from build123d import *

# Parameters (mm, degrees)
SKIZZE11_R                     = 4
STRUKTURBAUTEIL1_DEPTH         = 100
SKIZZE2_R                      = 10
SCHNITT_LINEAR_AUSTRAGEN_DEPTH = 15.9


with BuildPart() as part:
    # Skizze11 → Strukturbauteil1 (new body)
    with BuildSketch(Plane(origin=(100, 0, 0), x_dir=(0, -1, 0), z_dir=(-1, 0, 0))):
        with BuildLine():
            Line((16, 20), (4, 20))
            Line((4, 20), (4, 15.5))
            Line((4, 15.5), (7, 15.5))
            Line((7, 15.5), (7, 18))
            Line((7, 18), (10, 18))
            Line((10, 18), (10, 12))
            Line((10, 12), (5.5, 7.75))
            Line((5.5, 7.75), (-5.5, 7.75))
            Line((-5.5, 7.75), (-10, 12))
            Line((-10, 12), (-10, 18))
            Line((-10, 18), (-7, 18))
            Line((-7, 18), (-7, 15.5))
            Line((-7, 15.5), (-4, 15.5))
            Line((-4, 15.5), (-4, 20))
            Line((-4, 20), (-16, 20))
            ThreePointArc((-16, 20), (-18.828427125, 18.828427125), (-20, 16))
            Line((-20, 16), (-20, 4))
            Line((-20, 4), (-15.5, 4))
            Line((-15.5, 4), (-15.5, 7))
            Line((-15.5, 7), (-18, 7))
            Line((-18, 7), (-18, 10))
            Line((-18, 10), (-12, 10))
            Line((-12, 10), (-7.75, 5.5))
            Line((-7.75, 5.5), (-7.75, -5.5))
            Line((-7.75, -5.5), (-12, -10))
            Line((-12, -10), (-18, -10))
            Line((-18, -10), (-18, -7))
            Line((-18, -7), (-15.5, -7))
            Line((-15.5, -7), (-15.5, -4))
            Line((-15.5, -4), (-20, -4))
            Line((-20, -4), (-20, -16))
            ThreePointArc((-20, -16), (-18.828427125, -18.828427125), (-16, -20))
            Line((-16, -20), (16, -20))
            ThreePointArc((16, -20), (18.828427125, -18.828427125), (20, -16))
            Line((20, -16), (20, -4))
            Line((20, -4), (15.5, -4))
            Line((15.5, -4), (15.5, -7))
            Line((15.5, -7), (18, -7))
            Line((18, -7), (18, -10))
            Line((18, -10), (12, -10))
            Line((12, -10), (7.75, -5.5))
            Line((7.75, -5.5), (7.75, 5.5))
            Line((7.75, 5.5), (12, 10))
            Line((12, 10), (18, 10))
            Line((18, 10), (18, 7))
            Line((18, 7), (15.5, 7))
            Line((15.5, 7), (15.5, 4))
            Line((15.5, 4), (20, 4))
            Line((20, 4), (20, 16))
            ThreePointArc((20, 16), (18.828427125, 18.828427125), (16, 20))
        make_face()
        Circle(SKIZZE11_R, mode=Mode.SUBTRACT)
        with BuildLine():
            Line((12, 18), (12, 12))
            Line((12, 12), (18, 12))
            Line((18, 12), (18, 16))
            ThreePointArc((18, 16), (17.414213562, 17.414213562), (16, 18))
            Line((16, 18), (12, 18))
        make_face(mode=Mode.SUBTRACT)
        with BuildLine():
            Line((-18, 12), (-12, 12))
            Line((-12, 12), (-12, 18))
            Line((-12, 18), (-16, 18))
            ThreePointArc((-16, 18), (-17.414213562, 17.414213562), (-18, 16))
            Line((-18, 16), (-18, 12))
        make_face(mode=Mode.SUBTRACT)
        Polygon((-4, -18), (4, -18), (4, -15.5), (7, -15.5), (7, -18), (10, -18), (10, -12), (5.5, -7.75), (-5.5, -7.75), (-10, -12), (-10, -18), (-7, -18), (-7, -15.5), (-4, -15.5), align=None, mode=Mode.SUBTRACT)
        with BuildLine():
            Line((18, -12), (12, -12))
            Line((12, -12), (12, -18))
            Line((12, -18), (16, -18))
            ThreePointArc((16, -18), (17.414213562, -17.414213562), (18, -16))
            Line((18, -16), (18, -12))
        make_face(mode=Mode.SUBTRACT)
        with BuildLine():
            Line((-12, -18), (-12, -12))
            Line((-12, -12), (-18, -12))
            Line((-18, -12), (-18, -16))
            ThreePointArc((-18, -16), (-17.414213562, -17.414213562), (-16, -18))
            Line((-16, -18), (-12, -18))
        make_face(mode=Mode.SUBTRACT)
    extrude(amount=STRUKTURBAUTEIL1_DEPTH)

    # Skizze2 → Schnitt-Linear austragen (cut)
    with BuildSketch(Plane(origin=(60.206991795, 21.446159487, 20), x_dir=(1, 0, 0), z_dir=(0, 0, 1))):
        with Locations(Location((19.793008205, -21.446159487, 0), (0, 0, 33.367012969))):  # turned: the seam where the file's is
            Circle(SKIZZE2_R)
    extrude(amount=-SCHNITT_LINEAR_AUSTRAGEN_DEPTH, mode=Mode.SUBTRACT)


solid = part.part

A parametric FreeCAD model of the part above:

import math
import FreeCAD as App
import Part
import Sketcher
from FreeCAD import Vector


def add_polygon(sketch, points):
    """Adds a closed chain of lines whose ends are joined by coincident constraints."""
    first, n = sketch.GeometryCount, len(points)
    for a, b in zip(points, points[1:] + points[:1]):
        sketch.addGeometry(Part.LineSegment(App.Vector(*a, 0), App.Vector(*b, 0)), False)
    for i in range(n):
        sketch.addConstraint(Sketcher.Constraint("Coincident", first + i, 2, first + (i + 1) % n, 1))

doc = App.newDocument("Part")
body = doc.addObject("PartDesign::Body", "Body")

sketch1 = body.newObject("Sketcher::SketchObject", "Sketch")
sketch1.AttachmentSupport = (doc.getObject("YZ_Plane"), [""])
sketch1.MapMode = "FlatFace"
sketch1.AttachmentOffset = App.Placement(Vector(0, 0, 100), App.Rotation())
sketch1.addGeometry(Part.LineSegment(Vector(-16, 20, 0), Vector(-4, 20, 0)), False)
sketch1.addGeometry(Part.LineSegment(Vector(-4, 20, 0), Vector(-4, 15.5, 0)), False)
sketch1.addGeometry(Part.LineSegment(Vector(-4, 15.5, 0), Vector(-7, 15.5, 0)), False)
sketch1.addGeometry(Part.LineSegment(Vector(-7, 15.5, 0), Vector(-7, 18, 0)), False)
sketch1.addGeometry(Part.LineSegment(Vector(-7, 18, 0), Vector(-10, 18, 0)), False)
sketch1.addGeometry(Part.LineSegment(Vector(-10, 18, 0), Vector(-10, 12, 0)), False)
sketch1.addGeometry(Part.LineSegment(Vector(-10, 12, 0), Vector(-5.5, 7.8, 0)), False)
sketch1.addGeometry(Part.LineSegment(Vector(-5.5, 7.8, 0), Vector(5.5, 7.8, 0)), False)
sketch1.addGeometry(Part.LineSegment(Vector(5.5, 7.8, 0), Vector(10, 12, 0)), False)
sketch1.addGeometry(Part.LineSegment(Vector(10, 12, 0), Vector(10, 18, 0)), False)
sketch1.addGeometry(Part.LineSegment(Vector(10, 18, 0), Vector(7, 18, 0)), False)
sketch1.addGeometry(Part.LineSegment(Vector(7, 18, 0), Vector(7, 15.5, 0)), False)
sketch1.addGeometry(Part.LineSegment(Vector(7, 15.5, 0), Vector(4, 15.5, 0)), False)
sketch1.addGeometry(Part.LineSegment(Vector(4, 15.5, 0), Vector(4, 20, 0)), False)
sketch1.addGeometry(Part.LineSegment(Vector(4, 20, 0), Vector(16, 20, 0)), False)
sketch1.addGeometry(Part.ArcOfCircle(Part.Circle(Vector(16, 16, 0), Vector(0, 0, 1), 4), math.radians(0), math.radians(90)), False)
sketch1.addGeometry(Part.LineSegment(Vector(20, 16, 0), Vector(20, 4, 0)), False)
sketch1.addGeometry(Part.LineSegment(Vector(20, 4, 0), Vector(15.5, 4, 0)), False)
sketch1.addGeometry(Part.LineSegment(Vector(15.5, 4, 0), Vector(15.5, 7, 0)), False)
sketch1.addGeometry(Part.LineSegment(Vector(15.5, 7, 0), Vector(18, 7, 0)), False)
sketch1.addGeometry(Part.LineSegment(Vector(18, 7, 0), Vector(18, 10, 0)), False)
sketch1.addGeometry(Part.LineSegment(Vector(18, 10, 0), Vector(12, 10, 0)), False)
sketch1.addGeometry(Part.LineSegment(Vector(12, 10, 0), Vector(7.8, 5.5, 0)), False)
sketch1.addGeometry(Part.LineSegment(Vector(7.8, 5.5, 0), Vector(7.8, -5.5, 0)), False)
sketch1.addGeometry(Part.LineSegment(Vector(7.8, -5.5, 0), Vector(12, -10, 0)), False)
sketch1.addGeometry(Part.LineSegment(Vector(12, -10, 0), Vector(18, -10, 0)), False)
sketch1.addGeometry(Part.LineSegment(Vector(18, -10, 0), Vector(18, -7, 0)), False)
sketch1.addGeometry(Part.LineSegment(Vector(18, -7, 0), Vector(15.5, -7, 0)), False)
sketch1.addGeometry(Part.LineSegment(Vector(15.5, -7, 0), Vector(15.5, -4, 0)), False)
sketch1.addGeometry(Part.LineSegment(Vector(15.5, -4, 0), Vector(20, -4, 0)), False)
sketch1.addGeometry(Part.LineSegment(Vector(20, -4, 0), Vector(20, -16, 0)), False)
sketch1.addGeometry(Part.ArcOfCircle(Part.Circle(Vector(16, -16, 0), Vector(0, 0, 1), 4), math.radians(-90), math.radians(0)), False)
sketch1.addGeometry(Part.LineSegment(Vector(16, -20, 0), Vector(-16, -20, 0)), False)
sketch1.addGeometry(Part.ArcOfCircle(Part.Circle(Vector(-16, -16, 0), Vector(0, 0, 1), 4), math.radians(180), math.radians(270)), False)
sketch1.addGeometry(Part.LineSegment(Vector(-20, -16, 0), Vector(-20, -4, 0)), False)
sketch1.addGeometry(Part.LineSegment(Vector(-20, -4, 0), Vector(-15.5, -4, 0)), False)
sketch1.addGeometry(Part.LineSegment(Vector(-15.5, -4, 0), Vector(-15.5, -7, 0)), False)
sketch1.addGeometry(Part.LineSegment(Vector(-15.5, -7, 0), Vector(-18, -7, 0)), False)
sketch1.addGeometry(Part.LineSegment(Vector(-18, -7, 0), Vector(-18, -10, 0)), False)
sketch1.addGeometry(Part.LineSegment(Vector(-18, -10, 0), Vector(-12, -10, 0)), False)
sketch1.addGeometry(Part.LineSegment(Vector(-12, -10, 0), Vector(-7.8, -5.5, 0)), False)
sketch1.addGeometry(Part.LineSegment(Vector(-7.8, -5.5, 0), Vector(-7.8, 5.5, 0)), False)
sketch1.addGeometry(Part.LineSegment(Vector(-7.8, 5.5, 0), Vector(-12, 10, 0)), False)
sketch1.addGeometry(Part.LineSegment(Vector(-12, 10, 0), Vector(-18, 10, 0)), False)
sketch1.addGeometry(Part.LineSegment(Vector(-18, 10, 0), Vector(-18, 7, 0)), False)
sketch1.addGeometry(Part.LineSegment(Vector(-18, 7, 0), Vector(-15.5, 7, 0)), False)
sketch1.addGeometry(Part.LineSegment(Vector(-15.5, 7, 0), Vector(-15.5, 4, 0)), False)
sketch1.addGeometry(Part.LineSegment(Vector(-15.5, 4, 0), Vector(-20, 4, 0)), False)
sketch1.addGeometry(Part.LineSegment(Vector(-20, 4, 0), Vector(-20, 16, 0)), False)
sketch1.addGeometry(Part.ArcOfCircle(Part.Circle(Vector(-16, 16, 0), Vector(0, 0, 1), 4), math.radians(90), math.radians(180)), False)
sketch1.addGeometry(Part.LineSegment(Vector(12, -12, 0), Vector(12, -18, 0)), False)
sketch1.addGeometry(Part.LineSegment(Vector(12, -18, 0), Vector(16, -18, 0)), False)
sketch1.addGeometry(Part.ArcOfCircle(Part.Circle(Vector(16, -16, 0), Vector(0, 0, 1), 2), math.radians(-90), math.radians(0)), False)
sketch1.addGeometry(Part.LineSegment(Vector(18, -16, 0), Vector(18, -12, 0)), False)
sketch1.addGeometry(Part.LineSegment(Vector(18, -12, 0), Vector(12, -12, 0)), False)
add_polygon(sketch1, [(-4, -18), (4, -18), (4, -15.5), (7, -15.5), (7, -18), (10, -18), (10, -12), (5.5, -7.8), (-5.5, -7.8), (-10, -12), (-10, -18), (-7, -18), (-7, -15.5), (-4, -15.5)])
sketch1.addGeometry(Part.LineSegment(Vector(-12, -12, 0), Vector(-18, -12, 0)), False)
sketch1.addGeometry(Part.LineSegment(Vector(-18, -12, 0), Vector(-18, -16, 0)), False)
sketch1.addGeometry(Part.ArcOfCircle(Part.Circle(Vector(-16, -16, 0), Vector(0, 0, 1), 2), math.radians(-180), math.radians(-90)), False)
sketch1.addGeometry(Part.LineSegment(Vector(-16, -18, 0), Vector(-12, -18, 0)), False)
sketch1.addGeometry(Part.LineSegment(Vector(-12, -18, 0), Vector(-12, -12, 0)), False)
sketch1.addGeometry(Part.LineSegment(Vector(12, 12, 0), Vector(18, 12, 0)), False)
sketch1.addGeometry(Part.LineSegment(Vector(18, 12, 0), Vector(18, 16, 0)), False)
sketch1.addGeometry(Part.ArcOfCircle(Part.Circle(Vector(16, 16, 0), Vector(0, 0, 1), 2), math.radians(0), math.radians(90)), False)
sketch1.addGeometry(Part.LineSegment(Vector(16, 18, 0), Vector(12, 18, 0)), False)
sketch1.addGeometry(Part.LineSegment(Vector(12, 18, 0), Vector(12, 12, 0)), False)
sketch1.addGeometry(Part.Circle(Vector(0, 0, 0), Vector(0, 0, 1), 4), False)
sketch1.addGeometry(Part.LineSegment(Vector(-12, 12, 0), Vector(-12, 18, 0)), False)
sketch1.addGeometry(Part.LineSegment(Vector(-12, 18, 0), Vector(-16, 18, 0)), False)
sketch1.addGeometry(Part.ArcOfCircle(Part.Circle(Vector(-16, 16, 0), Vector(0, 0, 1), 2), math.radians(90), math.radians(180)), False)
sketch1.addGeometry(Part.LineSegment(Vector(-18, 16, 0), Vector(-18, 12, 0)), False)
sketch1.addGeometry(Part.LineSegment(Vector(-18, 12, 0), Vector(-12, 12, 0)), False)
sketch1.addConstraint([
    Sketcher.Constraint("Coincident", 0, 2, 1, 1),
    Sketcher.Constraint("Coincident", 1, 2, 2, 1),
    Sketcher.Constraint("Coincident", 2, 2, 3, 1),
    Sketcher.Constraint("Coincident", 3, 2, 4, 1),
    Sketcher.Constraint("Coincident", 4, 2, 5, 1),
    Sketcher.Constraint("Coincident", 5, 2, 6, 1),
    Sketcher.Constraint("Coincident", 6, 2, 7, 1),
    Sketcher.Constraint("Coincident", 7, 2, 8, 1),
    Sketcher.Constraint("Coincident", 8, 2, 9, 1),
    Sketcher.Constraint("Coincident", 9, 2, 10, 1),
    Sketcher.Constraint("Coincident", 10, 2, 11, 1),
    Sketcher.Constraint("Coincident", 11, 2, 12, 1),
    Sketcher.Constraint("Coincident", 12, 2, 13, 1),
    Sketcher.Constraint("Coincident", 13, 2, 14, 1),
    Sketcher.Constraint("Tangent", 14, 2, 15, 2),
    Sketcher.Constraint("Tangent", 15, 1, 16, 1),
    Sketcher.Constraint("Coincident", 16, 2, 17, 1),
    Sketcher.Constraint("Coincident", 17, 2, 18, 1),
    Sketcher.Constraint("Coincident", 18, 2, 19, 1),
    Sketcher.Constraint("Coincident", 19, 2, 20, 1),
    Sketcher.Constraint("Coincident", 20, 2, 21, 1),
    Sketcher.Constraint("Coincident", 21, 2, 22, 1),
    Sketcher.Constraint("Coincident", 22, 2, 23, 1),
    Sketcher.Constraint("Coincident", 23, 2, 24, 1),
    Sketcher.Constraint("Coincident", 24, 2, 25, 1),
    Sketcher.Constraint("Coincident", 25, 2, 26, 1),
    Sketcher.Constraint("Coincident", 26, 2, 27, 1),
    Sketcher.Constraint("Coincident", 27, 2, 28, 1),
    Sketcher.Constraint("Coincident", 28, 2, 29, 1),
    Sketcher.Constraint("Coincident", 29, 2, 30, 1),
    Sketcher.Constraint("Tangent", 30, 2, 31, 2),
    Sketcher.Constraint("Tangent", 31, 1, 32, 1),
    Sketcher.Constraint("Tangent", 32, 2, 33, 2),
    Sketcher.Constraint("Tangent", 33, 1, 34, 1),
    Sketcher.Constraint("Coincident", 34, 2, 35, 1),
    Sketcher.Constraint("Coincident", 35, 2, 36, 1),
    Sketcher.Constraint("Coincident", 36, 2, 37, 1),
    Sketcher.Constraint("Coincident", 37, 2, 38, 1),
    Sketcher.Constraint("Coincident", 38, 2, 39, 1),
    Sketcher.Constraint("Coincident", 39, 2, 40, 1),
    Sketcher.Constraint("Coincident", 40, 2, 41, 1),
    Sketcher.Constraint("Coincident", 41, 2, 42, 1),
    Sketcher.Constraint("Coincident", 42, 2, 43, 1),
    Sketcher.Constraint("Coincident", 43, 2, 44, 1),
    Sketcher.Constraint("Coincident", 44, 2, 45, 1),
    Sketcher.Constraint("Coincident", 45, 2, 46, 1),
    Sketcher.Constraint("Coincident", 46, 2, 47, 1),
    Sketcher.Constraint("Coincident", 47, 2, 48, 1),
    Sketcher.Constraint("Tangent", 48, 2, 49, 2),
    Sketcher.Constraint("Tangent", 49, 1, 0, 1),
    Sketcher.Constraint("Coincident", 50, 2, 51, 1),
    Sketcher.Constraint("Tangent", 51, 2, 52, 1),
    Sketcher.Constraint("Tangent", 52, 2, 53, 1),
    Sketcher.Constraint("Coincident", 53, 2, 54, 1),
    Sketcher.Constraint("Coincident", 54, 2, 50, 1),
    Sketcher.Constraint("Coincident", 69, 2, 70, 1),
    Sketcher.Constraint("Tangent", 70, 2, 71, 1),
    Sketcher.Constraint("Tangent", 71, 2, 72, 1),
    Sketcher.Constraint("Coincident", 72, 2, 73, 1),
    Sketcher.Constraint("Coincident", 73, 2, 69, 1),
    Sketcher.Constraint("Coincident", 74, 2, 75, 1),
    Sketcher.Constraint("Tangent", 75, 2, 76, 1),
    Sketcher.Constraint("Tangent", 76, 2, 77, 1),
    Sketcher.Constraint("Coincident", 77, 2, 78, 1),
    Sketcher.Constraint("Coincident", 78, 2, 74, 1),
    Sketcher.Constraint("Coincident", 80, 2, 81, 1),
    Sketcher.Constraint("Tangent", 81, 2, 82, 1),
    Sketcher.Constraint("Tangent", 82, 2, 83, 1),
    Sketcher.Constraint("Coincident", 83, 2, 84, 1),
    Sketcher.Constraint("Coincident", 84, 2, 80, 1),
    Sketcher.Constraint("Horizontal", 0),
    Sketcher.Constraint("Vertical", 1),
    Sketcher.Constraint("Horizontal", 2),
    Sketcher.Constraint("Vertical", 3),
    Sketcher.Constraint("Horizontal", 4),
    Sketcher.Constraint("Vertical", 5),
    Sketcher.Constraint("Horizontal", 7),
    Sketcher.Constraint("Vertical", 9),
    Sketcher.Constraint("Horizontal", 10),
    Sketcher.Constraint("Vertical", 11),
    Sketcher.Constraint("Horizontal", 12),
    Sketcher.Constraint("Vertical", 13),
    Sketcher.Constraint("Horizontal", 14),
    Sketcher.Constraint("Vertical", 16),
    Sketcher.Constraint("Horizontal", 17),
    Sketcher.Constraint("Vertical", 18),
    Sketcher.Constraint("Horizontal", 19),
    Sketcher.Constraint("Vertical", 20),
    Sketcher.Constraint("Horizontal", 21),
    Sketcher.Constraint("Vertical", 23),
    Sketcher.Constraint("Horizontal", 25),
    Sketcher.Constraint("Vertical", 26),
    Sketcher.Constraint("Horizontal", 27),
    Sketcher.Constraint("Vertical", 28),
    Sketcher.Constraint("Horizontal", 29),
    Sketcher.Constraint("Vertical", 30),
    Sketcher.Constraint("Horizontal", 32),
    Sketcher.Constraint("Vertical", 34),
    Sketcher.Constraint("Horizontal", 35),
    Sketcher.Constraint("Vertical", 36),
    Sketcher.Constraint("Horizontal", 37),
    Sketcher.Constraint("Vertical", 38),
    Sketcher.Constraint("Horizontal", 39),
    Sketcher.Constraint("Vertical", 41),
    Sketcher.Constraint("Horizontal", 43),
    Sketcher.Constraint("Vertical", 44),
    Sketcher.Constraint("Horizontal", 45),
    Sketcher.Constraint("Vertical", 46),
    Sketcher.Constraint("Horizontal", 47),
    Sketcher.Constraint("Vertical", 48),
    Sketcher.Constraint("Vertical", 50),
    Sketcher.Constraint("Horizontal", 51),
    Sketcher.Constraint("Vertical", 53),
    Sketcher.Constraint("Horizontal", 54),
    Sketcher.Constraint("Horizontal", 55),
    Sketcher.Constraint("Vertical", 56),
    Sketcher.Constraint("Horizontal", 57),
    Sketcher.Constraint("Vertical", 58),
    Sketcher.Constraint("Horizontal", 59),
    Sketcher.Constraint("Vertical", 60),
    Sketcher.Constraint("Horizontal", 62),
    Sketcher.Constraint("Vertical", 64),
    Sketcher.Constraint("Horizontal", 65),
    Sketcher.Constraint("Vertical", 66),
    Sketcher.Constraint("Horizontal", 67),
    Sketcher.Constraint("Vertical", 68),
    Sketcher.Constraint("Horizontal", 69),
    Sketcher.Constraint("Vertical", 70),
    Sketcher.Constraint("Horizontal", 72),
    Sketcher.Constraint("Vertical", 73),
    Sketcher.Constraint("Horizontal", 74),
    Sketcher.Constraint("Vertical", 75),
    Sketcher.Constraint("Horizontal", 77),
    Sketcher.Constraint("Vertical", 78),
    Sketcher.Constraint("Vertical", 80),
    Sketcher.Constraint("Horizontal", 81),
    Sketcher.Constraint("Vertical", 83),
    Sketcher.Constraint("Horizontal", 84),
    Sketcher.Constraint("Coincident", 79, 3, -1, 1),
    Sketcher.Constraint("Coincident", 52, 3, 31, 3),
    Sketcher.Constraint("Coincident", 71, 3, 33, 3),
    Sketcher.Constraint("Coincident", 76, 3, 15, 3),
    Sketcher.Constraint("Coincident", 82, 3, 49, 3),
    Sketcher.Constraint("Equal", 15, 31),
    Sketcher.Constraint("Equal", 31, 33),
    Sketcher.Constraint("Equal", 33, 49),
    Sketcher.Constraint("Equal", 52, 71),
    Sketcher.Constraint("Equal", 71, 76),
    Sketcher.Constraint("Equal", 49, 79),
    Sketcher.Constraint("Equal", 76, 82),
    Sketcher.Constraint("Symmetric", 15, 3, 33, 3, -1, 1),
    Sketcher.Constraint("Symmetric", 31, 3, 49, 3, -1, 1),
    Sketcher.Constraint("Symmetric", 17, 2, 35, 2, -1, 1),
    Sketcher.Constraint("Symmetric", 19, 2, 37, 2, -1, 1),
    Sketcher.Constraint("Symmetric", 21, 2, 39, 2, -1, 1),
    Sketcher.Constraint("Symmetric", 22, 2, 40, 2, -1, 1),
    Sketcher.Constraint("Symmetric", 24, 2, 42, 2, -1, 1),
    Sketcher.Constraint("Symmetric", 26, 2, 44, 2, -1, 1),
    Sketcher.Constraint("Symmetric", 28, 2, 46, 2, -1, 1),
    Sketcher.Constraint("Symmetric", 1, 2, 56, 2, -1, 1),
    Sketcher.Constraint("Symmetric", 3, 2, 58, 2, -1, 1),
    Sketcher.Constraint("Symmetric", 5, 2, 60, 2, -1, 1),
    Sketcher.Constraint("Symmetric", 6, 2, 61, 2, -1, 1),
    Sketcher.Constraint("Symmetric", 8, 2, 63, 2, -1, 1),
    Sketcher.Constraint("Symmetric", 10, 2, 65, 2, -1, 1),
    Sketcher.Constraint("Symmetric", 12, 2, 67, 2, -1, 1),
    Sketcher.Constraint("Symmetric", 73, 2, 78, 2, -1, 1),
    Sketcher.Constraint("Symmetric", 54, 2, 84, 2, -1, 1),
    Sketcher.Constraint("Symmetric", 5, 2, 8, 2, -2),
    Sketcher.Constraint("Symmetric", 3, 2, 10, 2, -2),
    Sketcher.Constraint("Symmetric", 1, 2, 12, 2, -2),
    Sketcher.Constraint("Symmetric", 29, 2, 34, 2, -2),
    Sketcher.Constraint("Symmetric", 27, 2, 36, 2, -2),
    Sketcher.Constraint("Symmetric", 25, 2, 38, 2, -2),
    Sketcher.Constraint("Symmetric", 54, 2, 73, 2, -2),
    Sketcher.Constraint("Perpendicular", 6, 22),
    Sketcher.Constraint("Perpendicular", 8, 24),
    Sketcher.Constraint("Parallel", 24, 42),
    Sketcher.Constraint("Perpendicular", 42, 63),
    Sketcher.Constraint("Horizontal", 23, 2, 40, 2),
    Sketcher.Constraint("Horizontal", 51, 2, 55, 2),
    Sketcher.Constraint("Horizontal", 55, 2, 58, 2),
    Sketcher.Constraint("Horizontal", 54, 2, 60, 2),
    Sketcher.Constraint("Vertical", 21, 2, 24, 2),
    Sketcher.Constraint("Vertical", 24, 2, 50, 2),
    Sketcher.Constraint("Vertical", 26, 2, 52, 2),
    Sketcher.Constraint("Equal", 2, 4),
    Sketcher.Constraint("Equal", 47, 1),
    Sketcher.Constraint("Equal", 84, 5),
    Sketcher.Constraint("Equal", 14, 16),
    Sketcher.Constraint("Equal", 67, 18),
    Sketcher.Constraint("Equal", 18, 20),
    Sketcher.Constraint("Equal", 62, 23),
    Sketcher.Constraint("Equal", 8, 22),
    Sketcher.Constraint("Diameter", 79, 8.0),
    Sketcher.Constraint("Radius", 52, 2.0),
    Sketcher.Constraint("DistanceX", 0, 1, 0, 2, 12.0),
    Sketcher.Constraint("DistanceX", 2, 2, 2, 1, 3.0),
    Sketcher.Constraint("DistanceX", 7, 1, 7, 2, 11.0),
    Sketcher.Constraint("DistanceX", 21, 2, 21, 1, 6.0),
    Sketcher.Constraint("DistanceX", 32, 2, 32, 1, 32.0),
    Sketcher.Constraint("DistanceX", 17, 2, 17, 1, 4.5),
    Sketcher.Constraint("DistanceY", -1, 1, 6, 2, 7.75),
])
pad1 = body.newObject("PartDesign::Pad", "Pad")
pad1.Profile = sketch1
pad1.Length = 100
pad1.Reversed = True

sketch2 = body.newObject("Sketcher::SketchObject", "Sketch001")
sketch2.AttachmentSupport = (doc.getObject("XY_Plane"), [""])
sketch2.MapMode = "FlatFace"
sketch2.AttachmentOffset = App.Placement(Vector(0, 0, 20), App.Rotation())
sketch2.addGeometry(Part.Circle(Vector(80, 0, 0), Vector(0, 0, 1), 10), False)
sketch2.addConstraint([
    Sketcher.Constraint("PointOnObject", 0, 3, -1),
    Sketcher.Constraint("Diameter", 0, 20.0),
    Sketcher.Constraint("DistanceX", -1, 1, 0, 3, 80.0),
])
pocket1 = body.newObject("PartDesign::Pocket", "Pocket")
pocket1.Profile = sketch2
pocket1.Length = 15.9

doc.recompute()
